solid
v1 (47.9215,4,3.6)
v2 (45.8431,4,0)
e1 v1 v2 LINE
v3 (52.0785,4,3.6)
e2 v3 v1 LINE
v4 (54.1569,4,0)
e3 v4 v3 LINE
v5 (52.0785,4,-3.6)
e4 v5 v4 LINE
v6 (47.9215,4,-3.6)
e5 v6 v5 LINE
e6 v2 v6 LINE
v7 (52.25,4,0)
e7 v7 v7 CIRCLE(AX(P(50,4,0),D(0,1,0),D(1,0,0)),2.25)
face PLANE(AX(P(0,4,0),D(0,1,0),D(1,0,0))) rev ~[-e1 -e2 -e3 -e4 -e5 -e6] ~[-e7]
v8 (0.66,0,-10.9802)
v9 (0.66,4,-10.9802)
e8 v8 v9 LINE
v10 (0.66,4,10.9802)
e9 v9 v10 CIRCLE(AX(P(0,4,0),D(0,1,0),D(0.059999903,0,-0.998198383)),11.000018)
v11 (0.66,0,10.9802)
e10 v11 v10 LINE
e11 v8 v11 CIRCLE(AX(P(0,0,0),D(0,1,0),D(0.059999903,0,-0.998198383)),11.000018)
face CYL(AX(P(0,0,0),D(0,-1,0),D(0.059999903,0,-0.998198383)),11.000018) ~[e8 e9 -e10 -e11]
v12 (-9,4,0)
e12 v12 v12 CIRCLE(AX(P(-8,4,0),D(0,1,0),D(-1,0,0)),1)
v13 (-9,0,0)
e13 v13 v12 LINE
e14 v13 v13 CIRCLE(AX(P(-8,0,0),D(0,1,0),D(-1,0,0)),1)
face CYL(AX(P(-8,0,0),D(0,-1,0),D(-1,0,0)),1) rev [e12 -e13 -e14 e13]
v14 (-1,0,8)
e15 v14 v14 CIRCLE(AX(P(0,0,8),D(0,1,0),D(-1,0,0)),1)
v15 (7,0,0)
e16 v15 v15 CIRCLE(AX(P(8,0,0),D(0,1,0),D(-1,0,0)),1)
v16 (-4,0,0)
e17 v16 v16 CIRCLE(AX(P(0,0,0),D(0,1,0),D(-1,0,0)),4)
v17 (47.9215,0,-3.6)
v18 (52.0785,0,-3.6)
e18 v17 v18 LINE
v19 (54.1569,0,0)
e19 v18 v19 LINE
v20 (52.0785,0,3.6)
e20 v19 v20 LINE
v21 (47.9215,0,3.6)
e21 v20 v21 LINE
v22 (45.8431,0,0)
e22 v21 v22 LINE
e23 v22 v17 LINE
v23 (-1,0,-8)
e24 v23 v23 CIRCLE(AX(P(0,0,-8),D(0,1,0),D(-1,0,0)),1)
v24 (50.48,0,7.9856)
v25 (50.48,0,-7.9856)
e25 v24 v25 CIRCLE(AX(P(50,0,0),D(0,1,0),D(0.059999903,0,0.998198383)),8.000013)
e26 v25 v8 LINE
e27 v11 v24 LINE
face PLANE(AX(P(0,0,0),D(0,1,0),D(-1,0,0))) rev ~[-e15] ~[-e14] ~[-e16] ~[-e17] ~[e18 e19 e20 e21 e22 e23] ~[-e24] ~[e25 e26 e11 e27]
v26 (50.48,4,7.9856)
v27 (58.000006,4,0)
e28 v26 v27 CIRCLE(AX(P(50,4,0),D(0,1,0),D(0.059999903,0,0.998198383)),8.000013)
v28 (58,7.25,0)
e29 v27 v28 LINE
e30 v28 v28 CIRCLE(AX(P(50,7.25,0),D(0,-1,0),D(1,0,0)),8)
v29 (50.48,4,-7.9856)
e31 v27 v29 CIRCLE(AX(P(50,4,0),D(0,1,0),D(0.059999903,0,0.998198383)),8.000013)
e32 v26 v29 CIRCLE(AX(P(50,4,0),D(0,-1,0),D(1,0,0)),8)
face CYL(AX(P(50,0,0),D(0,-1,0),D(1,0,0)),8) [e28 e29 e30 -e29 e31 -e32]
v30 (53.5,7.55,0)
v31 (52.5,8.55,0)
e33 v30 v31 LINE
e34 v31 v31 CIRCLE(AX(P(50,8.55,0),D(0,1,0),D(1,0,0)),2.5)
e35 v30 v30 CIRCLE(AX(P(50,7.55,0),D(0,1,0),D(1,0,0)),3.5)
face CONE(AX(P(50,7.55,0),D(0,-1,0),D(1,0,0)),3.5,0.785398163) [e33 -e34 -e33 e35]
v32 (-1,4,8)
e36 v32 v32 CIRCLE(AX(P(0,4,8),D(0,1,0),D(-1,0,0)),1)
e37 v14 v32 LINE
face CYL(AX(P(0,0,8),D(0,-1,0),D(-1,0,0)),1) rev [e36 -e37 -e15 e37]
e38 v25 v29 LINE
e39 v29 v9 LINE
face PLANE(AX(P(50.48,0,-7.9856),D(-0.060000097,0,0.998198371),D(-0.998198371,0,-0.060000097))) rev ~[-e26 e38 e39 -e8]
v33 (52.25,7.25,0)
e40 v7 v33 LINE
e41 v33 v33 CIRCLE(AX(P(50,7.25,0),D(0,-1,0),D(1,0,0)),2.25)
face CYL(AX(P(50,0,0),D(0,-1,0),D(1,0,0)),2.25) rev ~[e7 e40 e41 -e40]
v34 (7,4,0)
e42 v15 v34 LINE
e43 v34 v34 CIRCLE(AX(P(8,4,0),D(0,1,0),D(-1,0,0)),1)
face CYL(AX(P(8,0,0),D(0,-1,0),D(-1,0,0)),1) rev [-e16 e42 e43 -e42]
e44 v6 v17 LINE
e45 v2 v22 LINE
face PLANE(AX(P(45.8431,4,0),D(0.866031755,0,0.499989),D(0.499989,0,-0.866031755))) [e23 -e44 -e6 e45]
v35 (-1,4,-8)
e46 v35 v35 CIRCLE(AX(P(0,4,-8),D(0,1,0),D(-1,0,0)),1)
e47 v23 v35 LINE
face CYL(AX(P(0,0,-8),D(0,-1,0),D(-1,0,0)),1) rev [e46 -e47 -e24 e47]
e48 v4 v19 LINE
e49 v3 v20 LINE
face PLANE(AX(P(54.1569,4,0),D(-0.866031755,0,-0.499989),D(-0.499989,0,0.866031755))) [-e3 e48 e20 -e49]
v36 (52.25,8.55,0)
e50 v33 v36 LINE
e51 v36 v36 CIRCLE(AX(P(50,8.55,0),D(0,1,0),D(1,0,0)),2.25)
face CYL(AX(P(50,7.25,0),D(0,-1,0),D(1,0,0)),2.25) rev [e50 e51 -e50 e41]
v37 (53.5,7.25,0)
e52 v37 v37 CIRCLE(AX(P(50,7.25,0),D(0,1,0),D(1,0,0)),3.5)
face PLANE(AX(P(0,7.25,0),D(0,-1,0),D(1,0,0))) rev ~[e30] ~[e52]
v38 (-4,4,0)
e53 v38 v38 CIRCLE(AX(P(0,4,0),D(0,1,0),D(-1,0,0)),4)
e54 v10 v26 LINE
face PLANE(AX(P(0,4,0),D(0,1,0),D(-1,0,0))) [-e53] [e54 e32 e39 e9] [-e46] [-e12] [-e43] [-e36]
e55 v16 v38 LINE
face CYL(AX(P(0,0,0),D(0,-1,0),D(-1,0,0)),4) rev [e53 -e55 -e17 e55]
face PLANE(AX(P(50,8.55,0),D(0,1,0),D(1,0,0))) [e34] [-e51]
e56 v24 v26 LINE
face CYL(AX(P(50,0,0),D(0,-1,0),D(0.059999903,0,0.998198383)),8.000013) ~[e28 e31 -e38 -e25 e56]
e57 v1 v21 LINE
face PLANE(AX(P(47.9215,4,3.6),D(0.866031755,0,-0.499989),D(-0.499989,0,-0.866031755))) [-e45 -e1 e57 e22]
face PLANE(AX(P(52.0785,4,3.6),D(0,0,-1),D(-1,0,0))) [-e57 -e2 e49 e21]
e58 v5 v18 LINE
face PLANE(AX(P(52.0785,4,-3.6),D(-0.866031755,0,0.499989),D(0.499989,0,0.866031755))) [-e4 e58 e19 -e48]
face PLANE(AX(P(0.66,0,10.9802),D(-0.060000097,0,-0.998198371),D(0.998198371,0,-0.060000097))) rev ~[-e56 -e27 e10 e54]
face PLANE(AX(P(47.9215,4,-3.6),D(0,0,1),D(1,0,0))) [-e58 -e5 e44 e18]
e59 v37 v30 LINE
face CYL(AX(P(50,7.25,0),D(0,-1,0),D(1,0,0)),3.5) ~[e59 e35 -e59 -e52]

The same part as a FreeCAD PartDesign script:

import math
import FreeCAD as App
import Part
import Sketcher

V = App.Vector
Q = App.Units.Quantity


def edges_at(feature, points):
    """Names of the edges that pass closest to the given points."""
    edges = feature.Shape.Edges
    near = lambda p: min(range(len(edges)), key=lambda i: edges[i].distToShape(Part.Vertex(*p))[0])
    return sorted({f"Edge{near(p) + 1}" for p in points})


def add_polygon(sketch, points):
    """Adds a closed chain of lines whose ends are joined by coincident constraints."""
    first, n = sketch.GeometryCount, len(points)
    for a, b in zip(points, points[1:] + points[:1]):
        sketch.addGeometry(Part.LineSegment(App.Vector(*a, 0), App.Vector(*b, 0)), False)
    for i in range(n):
        sketch.addConstraint(Sketcher.Constraint("Coincident", first + i, 2, first + (i + 1) % n, 1))

doc = App.newDocument("Part")
params = doc.addObject("Spreadsheet::Sheet", "Params")
for row, (alias, value) in enumerate([
    ("sketch1_diameter", "2 mm"),
    ("sketch1_diameter2", "8 mm"),
    ("sketch1_radius", "11 mm"),
    ("sketch1_radius2", "8 mm"),
    ("sketch1_diameter3", "4.5 mm"),
    ("pad1_length", "4 mm"),
    ("sketch2_diameter", "16 mm"),
    ("sketch2_diameter2", "4.5 mm"),
    ("pad2_length", "7.25 mm"),
    ("sketch3_diameter", "4.5 mm"),
    ("pocket1_length", "4 mm"),
    ("sketch4_diameter", "7 mm"),
    ("sketch4_diameter2", "4.5 mm"),
    ("pad3_length", "1.3 mm"),
    ("chamfer_size", "1 mm"),
], start=1):
    params.set(f"A{row}", alias)
    params.set(f"B{row}", "=" + value)
    params.setAlias(f"B{row}", alias)

body = doc.addObject("PartDesign::Body", "Body")

# Sketch on XZ plane
sketch1 = body.newObject("Sketcher::SketchObject", "Sketch")
sketch1.AttachmentSupport = (doc.getObject("XZ_Plane"), [""])
sketch1.MapMode = "FlatFace"
sketch1.addGeometry(Part.LineSegment(V(50.5, -8, 0), V(0.7, -11, 0)), False)
sketch1.addGeometry(Part.ArcOfCircle(Part.Circle(V(0, 0, 0), V(0, 0, 1), 11), math.radians(87), math.radians(273)), False)
sketch1.addGeometry(Part.LineSegment(V(0.7, 11, 0), V(50.5, 8, 0)), False)
sketch1.addGeometry(Part.ArcOfCircle(Part.Circle(V(50, 0, 0), V(0, 0, 1), 8), math.radians(-87), math.radians(87)), False)
sketch1.addGeometry(Part.Circle(V(0, -8, 0), V(0, 0, 1), 1), False)
sketch1.addGeometry(Part.Circle(V(50, 0, 0), V(0, 0, 1), 2.2), False)
sketch1.addGeometry(Part.Circle(V(8, 0, 0), V(0, 0, 1), 1), False)
sketch1.addGeometry(Part.Circle(V(0, 0, 0), V(0, 0, 1), 4), False)
sketch1.addGeometry(Part.Circle(V(-8, 0, 0), V(0, 0, 1), 1), False)
sketch1.addGeometry(Part.Circle(V(0, 8, 0), V(0, 0, 1), 1), False)
sketch1.addConstraint(Sketcher.Constraint("Tangent", 0, 2, 1, 2))
sketch1.addConstraint(Sketcher.Constraint("Tangent", 1, 1, 2, 1))
sketch1.addConstraint(Sketcher.Constraint("Tangent", 2, 2, 3, 2))
sketch1.addConstraint(Sketcher.Constraint("Tangent", 3, 1, 0, 1))
sketch1.addConstraint(Sketcher.Constraint("Coincident", 1, 3, -1, 1))
sketch1.addConstraint(Sketcher.Constraint("Coincident", 7, 3, -1, 1))
sketch1.addConstraint(Sketcher.Constraint("Coincident", 5, 3, 3, 3))
sketch1.addConstraint(Sketcher.Constraint("Equal", 4, 6))
sketch1.addConstraint(Sketcher.Constraint("Equal", 6, 8))
sketch1.addConstraint(Sketcher.Constraint("Equal", 8, 9))
sketch1.addConstraint(Sketcher.Constraint("Symmetric", 6, 3, 8, 3, -1, 1))
sketch1.addConstraint(Sketcher.Constraint("Symmetric", 4, 3, 9, 3, -1, 1))
sketch1.addConstraint(Sketcher.Constraint("PointOnObject", 3, 3, -1))
sketch1.addConstraint(Sketcher.Constraint("PointOnObject", 4, 3, -2))
sketch1.addConstraint(Sketcher.Constraint("PointOnObject", 6, 3, -1))
sketch1.addConstraint(Sketcher.Constraint("Diameter", 4, Q("2 mm")))
sketch1.addConstraint(Sketcher.Constraint("Diameter", 7, Q("8 mm")))
sketch1.addConstraint(Sketcher.Constraint("Radius", 1, Q("11 mm")))
sketch1.addConstraint(Sketcher.Constraint("Radius", 3, Q("8 mm")))
sketch1.addConstraint(Sketcher.Constraint("Diameter", 5, Q("4.5 mm")))
sketch1.addConstraint(Sketcher.Constraint("DistanceX", -1, 1, 3, 3, Q("50 mm")))
sketch1.addConstraint(Sketcher.Constraint("DistanceY", 4, 3, -1, 1, Q("8 mm")))
sketch1.addConstraint(Sketcher.Constraint("DistanceX", -1, 1, 6, 3, Q("8 mm")))
sketch1.setExpression("Constraints[15]", "Params.sketch1_diameter")
sketch1.setExpression("Constraints[16]", "Params.sketch1_diameter2")
sketch1.setExpression("Constraints[17]", "Params.sketch1_radius")
sketch1.setExpression("Constraints[18]", "Params.sketch1_radius2")
sketch1.setExpression("Constraints[19]", "Params.sketch1_diameter3")
pad1 = body.newObject("PartDesign::Pad", "Pad")
pad1.Profile = sketch1
pad1.setExpression("Length", "Params.pad1_length")
pad1.Reversed = True

# Sketch on XZ plane
sketch2 = body.newObject("Sketcher::SketchObject", "Sketch001")
sketch2.AttachmentSupport = (doc.getObject("XZ_Plane"), [""])
sketch2.MapMode = "FlatFace"
sketch2.addGeometry(Part.Circle(V(50, 0, 0), V(0, 0, 1), 8), False)
sketch2.addGeometry(Part.Circle(V(50, 0, 0), V(0, 0, 1), 2.2), False)
sketch2.addConstraint(Sketcher.Constraint("Coincident", 1, 3, 0, 3))
sketch2.addConstraint(Sketcher.Constraint("PointOnObject", 0, 3, -1))
sketch2.addConstraint(Sketcher.Constraint("Diameter", 0, Q("16 mm")))
sketch2.addConstraint(Sketcher.Constraint("Diameter", 1, Q("4.5 mm")))
sketch2.addConstraint(Sketcher.Constraint("DistanceX", -1, 1, 0, 3, Q("50 mm")))
sketch2.setExpression("Constraints[2]", "Params.sketch2_diameter")
sketch2.setExpression("Constraints[3]", "Params.sketch2_diameter2")
pad2 = body.newObject("PartDesign::Pad", "Pad001")
pad2.Profile = sketch2
pad2.setExpression("Length", "Params.pad2_length")
pad2.Reversed = True

# Sketch on XZ plane
sketch3 = body.newObject("Sketcher::SketchObject", "Sketch002")
sketch3.AttachmentSupport = (doc.getObject("XZ_Plane"), [""])
sketch3.MapMode = "FlatFace"
sketch3.AttachmentOffset = App.Placement(V(0, 0, -4), App.Rotation())
add_polygon(sketch3, [(52.1, 3.6), (54.2, 0), (52.1, -3.6), (47.9, -3.6), (45.8, 0), (47.9, 3.6)])  # lines 0-5
sketch3.addGeometry(Part.Circle(V(50, 0, 0), V(0, 0, 1), 2.2), False)  # 6
sketch3.addConstraint(Sketcher.Constraint("Horizontal", 2))
sketch3.addConstraint(Sketcher.Constraint("Horizontal", 5))
sketch3.addConstraint(Sketcher.Constraint("Symmetric", 2, 2, 4, 2, -1))
sketch3.addConstraint(Sketcher.Constraint("PointOnObject", 6, 3, -1))
sketch3.addConstraint(Sketcher.Constraint("PointOnObject", 0, 2, -1))
sketch3.addConstraint(Sketcher.Constraint("PointOnObject", 3, 2, -1))
sketch3.addConstraint(Sketcher.Constraint("Parallel", 0, 3))
sketch3.addConstraint(Sketcher.Constraint("Parallel", 1, 4))
sketch3.addConstraint(Sketcher.Constraint("DistanceX", -1, 1, 6, 3, Q("50 mm")))
sketch3.addConstraint(Sketcher.Constraint("Diameter", 6, Q("4.5 mm")))
sketch3.addConstraint(Sketcher.Constraint("DistanceY", 1, 2, -1, 1, Q("3.6 mm")))
sketch3.addConstraint(Sketcher.Constraint("DistanceX", 2, 2, 2, 1, Q("4.157 mm")))
sketch3.addConstraint(Sketcher.Constraint("Angle", 0, Q("-60.0007 deg")))
sketch3.addConstraint(Sketcher.Constraint("DistanceX", 6, 3, 0, 2, Q("4.157 mm")))
sketch3.setExpression("Constraints[15]", "Params.sketch3_diameter")
pocket1 = body.newObject("PartDesign::Pocket", "Pocket")
pocket1.Profile = sketch3
pocket1.setExpression("Length", "Params.pocket1_length")
pocket1.Reversed = True

# Sketch on XZ plane
sketch4 = body.newObject("Sketcher::SketchObject", "Sketch003")
sketch4.AttachmentSupport = (doc.getObject("XZ_Plane"), [""])
sketch4.MapMode = "FlatFace"
sketch4.AttachmentOffset = App.Placement(V(0, 0, -7.25), App.Rotation())
sketch4.addGeometry(Part.Circle(V(50, 0, 0), V(0, 0, 1), 3.5), False)
sketch4.addGeometry(Part.Circle(V(50, 0, 0), V(0, 0, 1), 2.2), False)
sketch4.addConstraint(Sketcher.Constraint("Coincident", 1, 3, 0, 3))
sketch4.addConstraint(Sketcher.Constraint("PointOnObject", 0, 3, -1))
sketch4.addConstraint(Sketcher.Constraint("Diameter", 0, Q("7 mm")))
sketch4.addConstraint(Sketcher.Constraint("Diameter", 1, Q("4.5 mm")))
sketch4.addConstraint(Sketcher.Constraint("DistanceX", -1, 1, 0, 3, Q("50 mm")))
sketch4.setExpression("Constraints[2]", "Params.sketch4_diameter")
sketch4.setExpression("Constraints[3]", "Params.sketch4_diameter2")
pad3 = body.newObject("PartDesign::Pad", "Pad002")
pad3.Profile = sketch4
pad3.setExpression("Length", "Params.pad3_length")
pad3.Reversed = True
doc.recompute()

chamfer = body.newObject("PartDesign::Chamfer", "Chamfer")
chamfer.Base = (pad3, edges_at(pad3, [(46.5, 8.55, 0)]))
chamfer.setExpression("Size", "Params.chamfer_size")

doc.recompute()
